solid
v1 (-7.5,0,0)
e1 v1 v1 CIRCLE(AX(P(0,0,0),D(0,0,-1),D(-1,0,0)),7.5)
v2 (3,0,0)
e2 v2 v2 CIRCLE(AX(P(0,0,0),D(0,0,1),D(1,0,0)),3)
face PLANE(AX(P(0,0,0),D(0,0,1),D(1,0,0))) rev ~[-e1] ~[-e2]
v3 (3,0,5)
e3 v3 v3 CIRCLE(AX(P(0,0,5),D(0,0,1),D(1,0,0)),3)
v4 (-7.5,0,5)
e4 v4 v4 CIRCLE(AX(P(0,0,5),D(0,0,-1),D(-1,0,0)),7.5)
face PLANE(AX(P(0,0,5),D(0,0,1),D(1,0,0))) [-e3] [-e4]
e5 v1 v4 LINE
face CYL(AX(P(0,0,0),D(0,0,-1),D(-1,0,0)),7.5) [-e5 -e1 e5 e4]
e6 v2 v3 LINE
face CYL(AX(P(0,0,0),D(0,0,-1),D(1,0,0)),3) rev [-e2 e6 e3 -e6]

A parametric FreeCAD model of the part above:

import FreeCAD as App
import Part
import Sketcher

doc = App.newDocument("Part")
params = doc.addObject("Spreadsheet::Sheet", "Params")
for row, (alias, value) in enumerate([
    ("sketch1_diameter", "17 mm"),
    ("sketch1_diameter2", "6 mm"),
    ("pad1_length", "5 mm"),
    ("sketch2_diameter", "15 mm"),
    ("sketch2_diameter2", "17 mm"),
    ("pocket1_length", "10 mm"),
], start=1):
    params.set(f"A{row}", alias)
    params.set(f"B{row}", "=" + value)
    params.setAlias(f"B{row}", alias)

body = doc.addObject("PartDesign::Body", "Body")

# Sketch on XY plane
sketch1 = doc.addObject("Sketcher::SketchObject", "Sketch")
body.addObject(sketch1)
sketch1.AttachmentSupport = (doc.XY_Plane, [""])
sketch1.MapMode = "FlatFace"
sketch1.addGeometry([
    Part.Circle(App.Vector(0, 0, 0), App.Vector(0, 0, 1), 8.5),
    Part.Circle(App.Vector(0, 0, 0), App.Vector(0, 0, 1), 3),
], False)
sketch1.addConstraint([
    Sketcher.Constraint("Coincident", 0, 3, -1, 1),
    Sketcher.Constraint("Coincident", 1, 3, -1, 1),
    Sketcher.Constraint("Diameter", 0, 17.0),
    Sketcher.Constraint("Diameter", 1, 6.0),
])
sketch1.setExpression("Constraints[2]", "Params.sketch1_diameter")
sketch1.setExpression("Constraints[3]", "Params.sketch1_diameter2")
pad1 = doc.addObject("PartDesign::Pad", "Pad")
body.addObject(pad1)
pad1.Profile = sketch1
pad1.setExpression("Length", "Params.pad1_length")

# Sketch on XY plane
sketch2 = doc.addObject("Sketcher::SketchObject", "Sketch001")
body.addObject(sketch2)
sketch2.AttachmentSupport = (doc.XY_Plane, [""])
sketch2.MapMode = "FlatFace"
sketch2.addGeometry([
    Part.Circle(App.Vector(0, 0, 0), App.Vector(0, 0, 1), 8),
    Part.Circle(App.Vector(0, 0, 0), App.Vector(0, 0, 1), 8),
], False)
sketch2.addConstraint([
    Sketcher.Constraint("Coincident", 0, 3, -1, 1),
    Sketcher.Constraint("Coincident", 1, 3, -1, 1),
    Sketcher.Constraint("Diameter", 1, 15.0),
    Sketcher.Constraint("Diameter", 0, 17.0),
])
sketch2.setExpression("Constraints[2]", "Params.sketch2_diameter")
sketch2.setExpression("Constraints[3]", "Params.sketch2_diameter2")
pocket1 = doc.addObject("PartDesign::Pocket", "Pocket")
body.addObject(pocket1)
pocket1.Profile = sketch2
pocket1.setExpression("Length", "Params.pocket1_length")
pocket1.Reversed = True

doc.recompute()
